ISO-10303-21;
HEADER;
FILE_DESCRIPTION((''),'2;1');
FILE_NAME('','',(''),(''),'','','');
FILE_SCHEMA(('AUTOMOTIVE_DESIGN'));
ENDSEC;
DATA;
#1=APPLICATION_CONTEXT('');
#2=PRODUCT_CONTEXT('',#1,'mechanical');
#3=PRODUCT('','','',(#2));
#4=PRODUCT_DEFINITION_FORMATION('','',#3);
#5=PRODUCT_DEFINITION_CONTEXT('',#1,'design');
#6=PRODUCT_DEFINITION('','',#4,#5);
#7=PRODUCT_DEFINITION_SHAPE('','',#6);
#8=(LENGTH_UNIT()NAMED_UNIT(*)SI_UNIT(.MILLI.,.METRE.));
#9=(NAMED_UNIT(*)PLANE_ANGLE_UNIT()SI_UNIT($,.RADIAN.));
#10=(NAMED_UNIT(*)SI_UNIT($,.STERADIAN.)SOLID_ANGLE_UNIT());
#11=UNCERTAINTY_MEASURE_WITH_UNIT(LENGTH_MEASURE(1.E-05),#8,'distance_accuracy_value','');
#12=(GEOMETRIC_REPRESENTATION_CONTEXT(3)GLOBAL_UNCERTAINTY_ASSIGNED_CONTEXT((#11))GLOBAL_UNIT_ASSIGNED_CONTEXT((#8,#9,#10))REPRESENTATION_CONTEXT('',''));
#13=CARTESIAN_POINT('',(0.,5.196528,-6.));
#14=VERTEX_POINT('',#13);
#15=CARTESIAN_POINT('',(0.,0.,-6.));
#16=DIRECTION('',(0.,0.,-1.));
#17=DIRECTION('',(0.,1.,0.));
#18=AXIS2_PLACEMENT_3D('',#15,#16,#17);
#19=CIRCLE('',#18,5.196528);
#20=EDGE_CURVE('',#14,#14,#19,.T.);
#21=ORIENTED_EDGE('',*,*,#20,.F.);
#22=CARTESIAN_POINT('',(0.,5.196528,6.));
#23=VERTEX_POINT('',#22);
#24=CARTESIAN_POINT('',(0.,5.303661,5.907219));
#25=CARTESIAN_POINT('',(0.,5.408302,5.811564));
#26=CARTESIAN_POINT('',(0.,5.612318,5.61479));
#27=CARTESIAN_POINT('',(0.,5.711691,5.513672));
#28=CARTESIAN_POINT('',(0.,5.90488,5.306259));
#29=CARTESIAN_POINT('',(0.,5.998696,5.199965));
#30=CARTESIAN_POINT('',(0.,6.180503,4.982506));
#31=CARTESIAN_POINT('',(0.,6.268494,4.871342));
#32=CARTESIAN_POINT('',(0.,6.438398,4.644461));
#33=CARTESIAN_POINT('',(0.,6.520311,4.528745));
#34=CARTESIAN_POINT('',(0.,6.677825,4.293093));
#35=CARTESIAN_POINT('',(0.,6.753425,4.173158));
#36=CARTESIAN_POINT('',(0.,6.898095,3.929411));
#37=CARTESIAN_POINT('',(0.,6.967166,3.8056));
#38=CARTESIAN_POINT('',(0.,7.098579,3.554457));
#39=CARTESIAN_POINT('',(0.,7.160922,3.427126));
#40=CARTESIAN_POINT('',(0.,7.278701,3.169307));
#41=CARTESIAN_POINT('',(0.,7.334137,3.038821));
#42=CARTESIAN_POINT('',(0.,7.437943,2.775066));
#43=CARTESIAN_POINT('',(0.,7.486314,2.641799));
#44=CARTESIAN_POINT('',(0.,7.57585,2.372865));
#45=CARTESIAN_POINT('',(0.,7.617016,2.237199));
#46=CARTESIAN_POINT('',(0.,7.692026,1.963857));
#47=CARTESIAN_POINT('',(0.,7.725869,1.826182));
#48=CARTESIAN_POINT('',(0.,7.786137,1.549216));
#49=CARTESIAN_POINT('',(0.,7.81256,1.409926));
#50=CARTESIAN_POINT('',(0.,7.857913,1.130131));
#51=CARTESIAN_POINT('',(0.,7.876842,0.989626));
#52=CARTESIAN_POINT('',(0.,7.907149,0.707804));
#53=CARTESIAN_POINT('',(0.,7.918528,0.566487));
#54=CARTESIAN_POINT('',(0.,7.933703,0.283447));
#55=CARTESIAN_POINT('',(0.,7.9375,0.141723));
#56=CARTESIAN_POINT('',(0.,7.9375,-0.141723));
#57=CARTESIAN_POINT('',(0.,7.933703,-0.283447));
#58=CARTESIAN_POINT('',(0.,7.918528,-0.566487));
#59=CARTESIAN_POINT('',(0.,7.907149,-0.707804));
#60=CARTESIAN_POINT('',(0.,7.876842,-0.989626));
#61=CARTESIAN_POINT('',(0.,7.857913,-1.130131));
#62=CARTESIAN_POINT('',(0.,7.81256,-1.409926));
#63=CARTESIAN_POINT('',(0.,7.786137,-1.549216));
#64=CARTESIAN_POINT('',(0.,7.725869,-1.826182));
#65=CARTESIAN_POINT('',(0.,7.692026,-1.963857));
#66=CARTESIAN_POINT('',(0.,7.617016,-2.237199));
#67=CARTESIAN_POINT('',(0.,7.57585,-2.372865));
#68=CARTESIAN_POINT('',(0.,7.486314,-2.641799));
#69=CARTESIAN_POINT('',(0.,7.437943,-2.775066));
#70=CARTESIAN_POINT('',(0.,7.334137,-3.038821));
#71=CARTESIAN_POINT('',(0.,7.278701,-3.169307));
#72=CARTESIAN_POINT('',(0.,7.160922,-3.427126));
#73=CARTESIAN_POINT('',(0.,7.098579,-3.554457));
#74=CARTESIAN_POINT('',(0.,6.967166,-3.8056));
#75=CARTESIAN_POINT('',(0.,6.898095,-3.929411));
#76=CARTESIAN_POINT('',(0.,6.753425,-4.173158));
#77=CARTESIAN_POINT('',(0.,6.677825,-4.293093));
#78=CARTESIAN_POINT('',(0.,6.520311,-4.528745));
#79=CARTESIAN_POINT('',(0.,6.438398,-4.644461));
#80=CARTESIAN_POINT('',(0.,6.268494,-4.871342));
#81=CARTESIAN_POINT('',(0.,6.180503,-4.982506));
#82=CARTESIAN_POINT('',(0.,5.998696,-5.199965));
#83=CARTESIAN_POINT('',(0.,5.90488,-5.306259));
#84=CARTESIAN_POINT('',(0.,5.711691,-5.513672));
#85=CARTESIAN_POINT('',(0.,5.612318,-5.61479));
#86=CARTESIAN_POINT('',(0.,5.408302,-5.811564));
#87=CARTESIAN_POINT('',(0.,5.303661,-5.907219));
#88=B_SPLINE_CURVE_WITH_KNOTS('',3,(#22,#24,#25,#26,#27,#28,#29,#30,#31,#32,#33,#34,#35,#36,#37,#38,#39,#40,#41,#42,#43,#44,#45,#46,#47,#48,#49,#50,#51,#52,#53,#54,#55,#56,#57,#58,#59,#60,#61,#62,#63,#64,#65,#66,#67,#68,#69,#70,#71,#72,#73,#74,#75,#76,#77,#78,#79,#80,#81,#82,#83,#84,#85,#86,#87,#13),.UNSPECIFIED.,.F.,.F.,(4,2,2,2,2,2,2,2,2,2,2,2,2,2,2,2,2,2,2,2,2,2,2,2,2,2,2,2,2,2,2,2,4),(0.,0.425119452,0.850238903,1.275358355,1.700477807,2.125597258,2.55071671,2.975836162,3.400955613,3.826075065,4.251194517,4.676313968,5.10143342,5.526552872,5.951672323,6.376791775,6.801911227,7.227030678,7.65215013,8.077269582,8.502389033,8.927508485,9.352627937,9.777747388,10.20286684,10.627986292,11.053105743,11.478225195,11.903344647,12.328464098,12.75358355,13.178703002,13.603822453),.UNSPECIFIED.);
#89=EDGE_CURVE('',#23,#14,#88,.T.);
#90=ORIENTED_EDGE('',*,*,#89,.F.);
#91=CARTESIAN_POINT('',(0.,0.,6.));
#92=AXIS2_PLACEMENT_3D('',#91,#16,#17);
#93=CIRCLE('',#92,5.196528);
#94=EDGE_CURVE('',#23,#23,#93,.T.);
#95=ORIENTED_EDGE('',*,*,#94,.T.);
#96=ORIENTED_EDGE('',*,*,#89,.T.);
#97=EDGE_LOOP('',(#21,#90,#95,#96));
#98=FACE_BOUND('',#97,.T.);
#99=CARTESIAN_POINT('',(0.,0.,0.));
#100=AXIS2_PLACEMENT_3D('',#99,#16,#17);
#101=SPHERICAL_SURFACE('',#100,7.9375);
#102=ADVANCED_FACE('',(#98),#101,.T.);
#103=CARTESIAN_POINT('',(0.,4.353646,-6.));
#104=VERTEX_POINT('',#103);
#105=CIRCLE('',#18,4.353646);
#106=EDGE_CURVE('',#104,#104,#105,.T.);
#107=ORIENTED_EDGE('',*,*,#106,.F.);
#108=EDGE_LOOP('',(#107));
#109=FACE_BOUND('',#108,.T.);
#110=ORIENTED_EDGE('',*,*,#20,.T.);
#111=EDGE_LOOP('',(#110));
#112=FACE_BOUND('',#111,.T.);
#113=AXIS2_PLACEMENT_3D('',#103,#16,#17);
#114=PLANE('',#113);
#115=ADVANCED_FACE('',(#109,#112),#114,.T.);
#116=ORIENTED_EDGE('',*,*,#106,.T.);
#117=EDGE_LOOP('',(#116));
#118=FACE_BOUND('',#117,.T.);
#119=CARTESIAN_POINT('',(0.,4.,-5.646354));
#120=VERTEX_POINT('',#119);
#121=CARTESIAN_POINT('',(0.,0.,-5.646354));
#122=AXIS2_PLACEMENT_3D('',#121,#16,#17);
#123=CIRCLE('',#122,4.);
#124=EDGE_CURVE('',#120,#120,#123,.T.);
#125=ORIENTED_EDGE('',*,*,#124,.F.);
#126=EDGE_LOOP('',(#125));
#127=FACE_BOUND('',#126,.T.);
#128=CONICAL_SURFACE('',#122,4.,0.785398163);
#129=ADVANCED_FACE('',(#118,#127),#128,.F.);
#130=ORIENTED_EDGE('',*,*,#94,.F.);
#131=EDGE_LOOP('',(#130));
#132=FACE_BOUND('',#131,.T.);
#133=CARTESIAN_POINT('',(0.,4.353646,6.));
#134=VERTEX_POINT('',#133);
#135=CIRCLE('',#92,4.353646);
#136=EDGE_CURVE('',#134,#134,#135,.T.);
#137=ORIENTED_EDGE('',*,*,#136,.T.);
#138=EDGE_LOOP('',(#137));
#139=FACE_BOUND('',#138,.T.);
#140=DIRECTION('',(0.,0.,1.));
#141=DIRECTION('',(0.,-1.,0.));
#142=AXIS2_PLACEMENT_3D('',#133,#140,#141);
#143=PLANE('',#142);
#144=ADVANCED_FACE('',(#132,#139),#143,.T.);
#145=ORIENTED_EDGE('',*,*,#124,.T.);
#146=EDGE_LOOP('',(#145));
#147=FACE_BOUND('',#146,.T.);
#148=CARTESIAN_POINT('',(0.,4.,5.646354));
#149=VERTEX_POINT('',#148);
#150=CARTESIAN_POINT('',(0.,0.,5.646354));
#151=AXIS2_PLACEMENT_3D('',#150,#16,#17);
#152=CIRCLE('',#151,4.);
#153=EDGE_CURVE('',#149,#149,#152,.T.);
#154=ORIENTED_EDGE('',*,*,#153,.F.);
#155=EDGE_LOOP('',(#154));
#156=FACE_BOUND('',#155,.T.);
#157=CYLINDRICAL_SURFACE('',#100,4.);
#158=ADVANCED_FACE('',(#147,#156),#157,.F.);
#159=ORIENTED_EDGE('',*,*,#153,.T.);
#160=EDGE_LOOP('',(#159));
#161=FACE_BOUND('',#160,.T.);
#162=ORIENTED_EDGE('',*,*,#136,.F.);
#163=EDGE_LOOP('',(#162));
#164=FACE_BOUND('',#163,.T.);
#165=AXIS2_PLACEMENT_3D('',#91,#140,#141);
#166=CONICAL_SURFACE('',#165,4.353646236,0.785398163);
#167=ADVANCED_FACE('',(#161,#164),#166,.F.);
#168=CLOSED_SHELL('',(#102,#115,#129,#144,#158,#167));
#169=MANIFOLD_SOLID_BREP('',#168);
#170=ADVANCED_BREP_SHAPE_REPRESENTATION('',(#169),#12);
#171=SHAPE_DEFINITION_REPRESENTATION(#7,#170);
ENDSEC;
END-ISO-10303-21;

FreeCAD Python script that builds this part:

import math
import FreeCAD as App
import Part
import Sketcher
Q = App.Units.Quantity

doc = App.newDocument("Part")
body = doc.addObject("PartDesign::Body", "Body")

# Sketch on XY plane
sketch1 = body.newObject("Sketcher::SketchObject", "Sketch")
sketch1.AttachmentSupport = (doc.getObject("XY_Plane"), [""])
sketch1.MapMode = "FlatFace"
sketch1.addGeometry(Part.LineSegment(App.Vector(-5.646354, 4, 0), App.Vector(5.646354, 4, 0)), False)
sketch1.addGeometry(Part.LineSegment(App.Vector(5.646354, 4, 0), App.Vector(6, 4.353646, 0)), False)
sketch1.addGeometry(Part.LineSegment(App.Vector(6, 4.353646, 0), App.Vector(6, 5.196528, 0)), False)
sketch1.addGeometry(Part.ArcOfCircle(Part.Circle(App.Vector(0, 0, 0), App.Vector(0, 0, 1), 7.9375), math.radians(40.895446), math.radians(139.104554)), False)
sketch1.addGeometry(Part.LineSegment(App.Vector(-6, 5.196528, 0), App.Vector(-6, 4.353646, 0)), False)
sketch1.addGeometry(Part.LineSegment(App.Vector(-6, 4.353646, 0), App.Vector(-5.646354, 4, 0)), False)
sketch1.addConstraint(Sketcher.Constraint("Coincident", 0, 2, 1, 1))
sketch1.addConstraint(Sketcher.Constraint("Coincident", 1, 2, 2, 1))
sketch1.addConstraint(Sketcher.Constraint("Coincident", 2, 2, 3, 1))
sketch1.addConstraint(Sketcher.Constraint("Coincident", 3, 2, 4, 1))
sketch1.addConstraint(Sketcher.Constraint("Coincident", 4, 2, 5, 1))
sketch1.addConstraint(Sketcher.Constraint("Coincident", 5, 2, 0, 1))
sketch1.addConstraint(Sketcher.Constraint("Horizontal", 0))
sketch1.addConstraint(Sketcher.Constraint("Vertical", 2))
sketch1.addConstraint(Sketcher.Constraint("Vertical", 4))
sketch1.addConstraint(Sketcher.Constraint("Coincident", 3, 3, -1, 1))
sketch1.addConstraint(Sketcher.Constraint("Symmetric", 1, 2, 4, 2, -2))
sketch1.addConstraint(Sketcher.Constraint("Perpendicular", 1, 5))
sketch1.addConstraint(Sketcher.Constraint("Equal", 1, 5))
sketch1.addConstraint(Sketcher.Constraint("Radius", 3, Q("0.3125 in")))
sketch1.addConstraint(Sketcher.Constraint("DistanceY", -1, 1, 0, 2, Q("4 mm")))
sketch1.addConstraint(Sketcher.Constraint("DistanceX", -1, 1, 1, 2, Q("6 mm")))
sketch1.addConstraint(Sketcher.Constraint("Distance", 1, Q("0.500131 mm")))
revolution = body.newObject("PartDesign::Revolution", "Revolution")
revolution.Profile = sketch1
revolution.ReferenceAxis = (sketch1, ["H_Axis"])
revolution.Angle = 360
body2 = doc.addObject("PartDesign::Body", "Body001")
doc.recompute()

body.Placement = App.Placement(App.Vector(0, 0, 0), App.Rotation(App.Vector(0, 1, 0), 90))
boolean = body2.newObject("PartDesign::Boolean", "Boolean")
boolean.Type = "Fuse"
boolean.addObjects([body])

doc.recompute()
